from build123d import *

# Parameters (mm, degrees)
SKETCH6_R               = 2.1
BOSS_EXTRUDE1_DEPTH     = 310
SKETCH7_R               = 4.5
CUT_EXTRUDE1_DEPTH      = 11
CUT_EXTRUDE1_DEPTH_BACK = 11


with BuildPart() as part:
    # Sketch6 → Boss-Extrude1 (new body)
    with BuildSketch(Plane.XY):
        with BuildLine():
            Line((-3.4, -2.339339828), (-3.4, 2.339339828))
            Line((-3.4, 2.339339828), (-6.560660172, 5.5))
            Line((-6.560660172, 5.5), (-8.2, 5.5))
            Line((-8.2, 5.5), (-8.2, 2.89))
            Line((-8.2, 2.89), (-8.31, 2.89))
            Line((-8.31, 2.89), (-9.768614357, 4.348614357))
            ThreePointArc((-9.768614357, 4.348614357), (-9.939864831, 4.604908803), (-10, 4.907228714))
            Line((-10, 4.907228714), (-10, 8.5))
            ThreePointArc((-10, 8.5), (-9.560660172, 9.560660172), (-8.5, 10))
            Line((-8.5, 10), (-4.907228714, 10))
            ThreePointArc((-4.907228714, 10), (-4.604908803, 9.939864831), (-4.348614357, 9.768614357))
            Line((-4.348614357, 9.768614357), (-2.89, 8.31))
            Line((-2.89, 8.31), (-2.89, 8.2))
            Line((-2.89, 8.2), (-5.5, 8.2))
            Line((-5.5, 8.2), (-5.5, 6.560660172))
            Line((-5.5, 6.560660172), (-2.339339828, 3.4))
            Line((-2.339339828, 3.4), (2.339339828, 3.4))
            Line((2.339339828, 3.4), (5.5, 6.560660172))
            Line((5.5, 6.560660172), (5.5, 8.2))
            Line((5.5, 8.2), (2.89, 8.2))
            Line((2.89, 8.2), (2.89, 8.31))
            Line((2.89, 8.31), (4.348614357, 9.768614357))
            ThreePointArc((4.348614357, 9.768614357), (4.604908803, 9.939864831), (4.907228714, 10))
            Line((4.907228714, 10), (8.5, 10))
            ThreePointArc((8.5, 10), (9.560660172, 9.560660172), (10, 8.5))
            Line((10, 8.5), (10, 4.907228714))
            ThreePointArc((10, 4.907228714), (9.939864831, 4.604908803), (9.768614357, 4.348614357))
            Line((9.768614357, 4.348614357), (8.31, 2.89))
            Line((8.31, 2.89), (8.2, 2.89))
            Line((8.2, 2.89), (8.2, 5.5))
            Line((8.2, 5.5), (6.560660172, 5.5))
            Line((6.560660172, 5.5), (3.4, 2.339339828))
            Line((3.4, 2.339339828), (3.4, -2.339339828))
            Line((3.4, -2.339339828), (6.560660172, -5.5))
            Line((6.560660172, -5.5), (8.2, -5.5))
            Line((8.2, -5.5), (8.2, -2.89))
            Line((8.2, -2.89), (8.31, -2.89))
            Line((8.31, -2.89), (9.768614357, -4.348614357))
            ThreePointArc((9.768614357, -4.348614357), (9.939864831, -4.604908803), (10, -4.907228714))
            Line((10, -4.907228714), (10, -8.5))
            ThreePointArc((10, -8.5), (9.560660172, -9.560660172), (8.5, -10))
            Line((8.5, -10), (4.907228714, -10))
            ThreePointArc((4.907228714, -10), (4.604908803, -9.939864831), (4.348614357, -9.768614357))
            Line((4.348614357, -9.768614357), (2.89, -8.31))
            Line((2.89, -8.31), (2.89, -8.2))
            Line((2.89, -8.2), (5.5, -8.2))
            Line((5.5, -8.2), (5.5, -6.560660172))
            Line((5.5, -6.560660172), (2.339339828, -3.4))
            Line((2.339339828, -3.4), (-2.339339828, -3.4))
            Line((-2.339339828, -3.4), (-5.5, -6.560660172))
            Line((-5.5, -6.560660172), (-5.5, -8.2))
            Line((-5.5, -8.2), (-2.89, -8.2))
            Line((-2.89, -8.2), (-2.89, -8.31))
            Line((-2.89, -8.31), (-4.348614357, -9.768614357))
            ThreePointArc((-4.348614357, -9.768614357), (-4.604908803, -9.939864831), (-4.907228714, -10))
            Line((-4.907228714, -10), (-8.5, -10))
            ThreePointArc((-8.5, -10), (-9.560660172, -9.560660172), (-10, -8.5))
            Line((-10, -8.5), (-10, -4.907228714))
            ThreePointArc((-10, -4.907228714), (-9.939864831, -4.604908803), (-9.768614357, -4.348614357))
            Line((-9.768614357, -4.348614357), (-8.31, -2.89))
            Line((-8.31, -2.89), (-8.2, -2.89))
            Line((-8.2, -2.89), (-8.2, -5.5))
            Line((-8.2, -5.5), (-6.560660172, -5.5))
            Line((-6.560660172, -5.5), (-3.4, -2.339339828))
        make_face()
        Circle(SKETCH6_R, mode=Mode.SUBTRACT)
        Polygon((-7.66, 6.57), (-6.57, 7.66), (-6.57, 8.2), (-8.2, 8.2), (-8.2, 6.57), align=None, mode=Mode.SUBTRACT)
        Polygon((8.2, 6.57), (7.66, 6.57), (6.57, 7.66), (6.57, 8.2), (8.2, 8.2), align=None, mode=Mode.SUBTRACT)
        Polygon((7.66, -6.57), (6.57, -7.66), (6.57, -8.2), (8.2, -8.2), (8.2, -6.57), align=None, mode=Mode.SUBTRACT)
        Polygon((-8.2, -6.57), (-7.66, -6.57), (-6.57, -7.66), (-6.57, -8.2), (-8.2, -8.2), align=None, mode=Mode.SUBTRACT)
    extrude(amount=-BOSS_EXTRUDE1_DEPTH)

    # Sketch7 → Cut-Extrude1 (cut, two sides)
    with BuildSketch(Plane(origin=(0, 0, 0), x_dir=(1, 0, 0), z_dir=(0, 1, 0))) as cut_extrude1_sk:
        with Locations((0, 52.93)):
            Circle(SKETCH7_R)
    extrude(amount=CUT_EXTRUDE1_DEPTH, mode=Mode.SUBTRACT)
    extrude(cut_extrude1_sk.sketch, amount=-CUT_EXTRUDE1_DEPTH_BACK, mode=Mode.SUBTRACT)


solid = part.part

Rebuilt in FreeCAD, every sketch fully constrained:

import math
import FreeCAD as App
import Part
import Sketcher
from FreeCAD import Vector

doc = App.newDocument("Part")
params = doc.addObject("Spreadsheet::Sheet", "Params")
for row, (alias, value) in enumerate([
    ("sketch1_diameter", "4.2 mm"),
    ("sketch1_radius", "1.5 mm"),
    ("sketch1_radius2", "0.79 mm"),
    ("sketch1_width", "0.11 mm"),
    ("sketch1_width2", "2.61 mm"),
    ("pad1_length", "310 mm"),
    ("sketch2_diameter", "9 mm"),
], start=1):
    params.set(f"A{row}", alias)
    params.set(f"B{row}", "=" + value)
    params.setAlias(f"B{row}", alias)

body = doc.addObject("PartDesign::Body", "Body")

# Sketch on XY plane
sketch1 = body.newObject("Sketcher::SketchObject", "Sketch")
sketch1.AttachmentSupport = (doc.getObject("XY_Plane"), [""])
sketch1.MapMode = "FlatFace"
sketch1.addGeometry([
    Part.LineSegment(Vector(-3.4, 2.34, 0), Vector(-3.4, -2.34, 0)),  # 0
    Part.LineSegment(Vector(-3.4, -2.34, 0), Vector(-6.56, -5.5, 0)),  # 1
    Part.LineSegment(Vector(-6.56, -5.5, 0), Vector(-8.2, -5.5, 0)),  # 2
    Part.LineSegment(Vector(-8.2, -5.5, 0), Vector(-8.2, -2.89, 0)),  # 3
    Part.LineSegment(Vector(-8.2, -2.89, 0), Vector(-8.31, -2.89, 0)),  # 4
    Part.LineSegment(Vector(-8.31, -2.89, 0), Vector(-9.77, -4.35, 0)),  # 5
    Part.ArcOfCircle(Part.Circle(Vector(-9.21, -4.91, 0), Vector(0, 0, 1), 0.79), math.radians(135), math.radians(180)),  # 6
    Part.LineSegment(Vector(-10, -4.91, 0), Vector(-10, -8.5, 0)),  # 7
    Part.ArcOfCircle(Part.Circle(Vector(-8.5, -8.5, 0), Vector(0, 0, 1), 1.5), math.radians(180), math.radians(270)),  # 8
    Part.LineSegment(Vector(-8.5, -10, 0), Vector(-4.91, -10, 0)),  # 9
    Part.ArcOfCircle(Part.Circle(Vector(-4.91, -9.21, 0), Vector(0, 0, 1), 0.79), math.radians(-90), math.radians(-45)),  # 10
    Part.LineSegment(Vector(-4.35, -9.77, 0), Vector(-2.89, -8.31, 0)),  # 11
    Part.LineSegment(Vector(-2.89, -8.31, 0), Vector(-2.89, -8.2, 0)),  # 12
    Part.LineSegment(Vector(-2.89, -8.2, 0), Vector(-5.5, -8.2, 0)),  # 13
    Part.LineSegment(Vector(-5.5, -8.2, 0), Vector(-5.5, -6.56, 0)),  # 14
    Part.LineSegment(Vector(-5.5, -6.56, 0), Vector(-2.34, -3.4, 0)),  # 15
    Part.LineSegment(Vector(-2.34, -3.4, 0), Vector(2.34, -3.4, 0)),  # 16
    Part.LineSegment(Vector(2.34, -3.4, 0), Vector(5.5, -6.56, 0)),  # 17
    Part.LineSegment(Vector(5.5, -6.56, 0), Vector(5.5, -8.2, 0)),  # 18
    Part.LineSegment(Vector(5.5, -8.2, 0), Vector(2.89, -8.2, 0)),  # 19
    Part.LineSegment(Vector(2.89, -8.2, 0), Vector(2.89, -8.31, 0)),  # 20
    Part.LineSegment(Vector(2.89, -8.31, 0), Vector(4.35, -9.77, 0)),  # 21
    Part.ArcOfCircle(Part.Circle(Vector(4.91, -9.21, 0), Vector(0, 0, 1), 0.79), math.radians(-135), math.radians(-90)),  # 22
    Part.LineSegment(Vector(4.91, -10, 0), Vector(8.5, -10, 0)),  # 23
    Part.ArcOfCircle(Part.Circle(Vector(8.5, -8.5, 0), Vector(0, 0, 1), 1.5), math.radians(-90), math.radians(0)),  # 24
    Part.LineSegment(Vector(10, -8.5, 0), Vector(10, -4.91, 0)),  # 25
    Part.ArcOfCircle(Part.Circle(Vector(9.21, -4.91, 0), Vector(0, 0, 1), 0.79), math.radians(0), math.radians(45)),  # 26
    Part.LineSegment(Vector(9.77, -4.35, 0), Vector(8.31, -2.89, 0)),  # 27
    Part.LineSegment(Vector(8.31, -2.89, 0), Vector(8.2, -2.89, 0)),  # 28
    Part.LineSegment(Vector(8.2, -2.89, 0), Vector(8.2, -5.5, 0)),  # 29
    Part.LineSegment(Vector(8.2, -5.5, 0), Vector(6.56, -5.5, 0)),  # 30
    Part.LineSegment(Vector(6.56, -5.5, 0), Vector(3.4, -2.34, 0)),  # 31
    Part.LineSegment(Vector(3.4, -2.34, 0), Vector(3.4, 2.34, 0)),  # 32
    Part.LineSegment(Vector(3.4, 2.34, 0), Vector(6.56, 5.5, 0)),  # 33
    Part.LineSegment(Vector(6.56, 5.5, 0), Vector(8.2, 5.5, 0)),  # 34
    Part.LineSegment(Vector(8.2, 5.5, 0), Vector(8.2, 2.89, 0)),  # 35
    Part.LineSegment(Vector(8.2, 2.89, 0), Vector(8.31, 2.89, 0)),  # 36
    Part.LineSegment(Vector(8.31, 2.89, 0), Vector(9.77, 4.35, 0)),  # 37
    Part.ArcOfCircle(Part.Circle(Vector(9.21, 4.91, 0), Vector(0, 0, 1), 0.79), math.radians(-45), math.radians(0)),  # 38
    Part.LineSegment(Vector(10, 4.91, 0), Vector(10, 8.5, 0)),  # 39
    Part.ArcOfCircle(Part.Circle(Vector(8.5, 8.5, 0), Vector(0, 0, 1), 1.5), math.radians(0), math.radians(90)),  # 40
    Part.LineSegment(Vector(8.5, 10, 0), Vector(4.91, 10, 0)),  # 41
    Part.ArcOfCircle(Part.Circle(Vector(4.91, 9.21, 0), Vector(0, 0, 1), 0.79), math.radians(90), math.radians(135)),  # 42
    Part.LineSegment(Vector(4.35, 9.77, 0), Vector(2.89, 8.31, 0)),  # 43
    Part.LineSegment(Vector(2.89, 8.31, 0), Vector(2.89, 8.2, 0)),  # 44
    Part.LineSegment(Vector(2.89, 8.2, 0), Vector(5.5, 8.2, 0)),  # 45
    Part.LineSegment(Vector(5.5, 8.2, 0), Vector(5.5, 6.56, 0)),  # 46
    Part.LineSegment(Vector(5.5, 6.56, 0), Vector(2.34, 3.4, 0)),  # 47
    Part.LineSegment(Vector(2.34, 3.4, 0), Vector(-2.34, 3.4, 0)),  # 48
    Part.LineSegment(Vector(-2.34, 3.4, 0), Vector(-5.5, 6.56, 0)),  # 49
    Part.LineSegment(Vector(-5.5, 6.56, 0), Vector(-5.5, 8.2, 0)),  # 50
    Part.LineSegment(Vector(-5.5, 8.2, 0), Vector(-2.89, 8.2, 0)),  # 51
    Part.LineSegment(Vector(-2.89, 8.2, 0), Vector(-2.89, 8.31, 0)),  # 52
    Part.LineSegment(Vector(-2.89, 8.31, 0), Vector(-4.35, 9.77, 0)),  # 53
    Part.ArcOfCircle(Part.Circle(Vector(-4.91, 9.21, 0), Vector(0, 0, 1), 0.79), math.radians(45), math.radians(90)),  # 54
    Part.LineSegment(Vector(-4.91, 10, 0), Vector(-8.5, 10, 0)),  # 55
    Part.ArcOfCircle(Part.Circle(Vector(-8.5, 8.5, 0), Vector(0, 0, 1), 1.5), math.radians(90), math.radians(180)),  # 56
    Part.LineSegment(Vector(-10, 8.5, 0), Vector(-10, 4.91, 0)),  # 57
    Part.ArcOfCircle(Part.Circle(Vector(-9.21, 4.91, 0), Vector(0, 0, 1), 0.79), math.radians(180), math.radians(225)),  # 58
    Part.LineSegment(Vector(-9.77, 4.35, 0), Vector(-8.31, 2.89, 0)),  # 59
    Part.LineSegment(Vector(-8.31, 2.89, 0), Vector(-8.2, 2.89, 0)),  # 60
    Part.LineSegment(Vector(-8.2, 2.89, 0), Vector(-8.2, 5.5, 0)),  # 61
    Part.LineSegment(Vector(-8.2, 5.5, 0), Vector(-6.56, 5.5, 0)),  # 62
    Part.LineSegment(Vector(-6.56, 5.5, 0), Vector(-3.4, 2.34, 0)),  # 63
    Part.LineSegment(Vector(7.66, -6.57, 0), Vector(8.2, -6.57, 0)),  # 64
    Part.LineSegment(Vector(8.2, -6.57, 0), Vector(8.2, -8.2, 0)),  # 65
    Part.LineSegment(Vector(8.2, -8.2, 0), Vector(6.57, -8.2, 0)),  # 66
    Part.LineSegment(Vector(6.57, -8.2, 0), Vector(6.57, -7.66, 0)),  # 67
    Part.LineSegment(Vector(6.57, -7.66, 0), Vector(7.66, -6.57, 0)),  # 68
    Part.LineSegment(Vector(-8.2, -6.57, 0), Vector(-7.66, -6.57, 0)),  # 69
    Part.LineSegment(Vector(-7.66, -6.57, 0), Vector(-6.57, -7.66, 0)),  # 70
    Part.LineSegment(Vector(-6.57, -7.66, 0), Vector(-6.57, -8.2, 0)),  # 71
    Part.LineSegment(Vector(-6.57, -8.2, 0), Vector(-8.2, -8.2, 0)),  # 72
    Part.LineSegment(Vector(-8.2, -8.2, 0), Vector(-8.2, -6.57, 0)),  # 73
    Part.LineSegment(Vector(8.2, 6.57, 0), Vector(7.66, 6.57, 0)),  # 74
    Part.LineSegment(Vector(7.66, 6.57, 0), Vector(6.57, 7.66, 0)),  # 75
    Part.LineSegment(Vector(6.57, 7.66, 0), Vector(6.57, 8.2, 0)),  # 76
    Part.LineSegment(Vector(6.57, 8.2, 0), Vector(8.2, 8.2, 0)),  # 77
    Part.LineSegment(Vector(8.2, 8.2, 0), Vector(8.2, 6.57, 0)),  # 78
    Part.Circle(Vector(0, 0, 0), Vector(0, 0, 1), 2.1),  # 79
    Part.LineSegment(Vector(-7.66, 6.57, 0), Vector(-8.2, 6.57, 0)),  # 80
    Part.LineSegment(Vector(-8.2, 6.57, 0), Vector(-8.2, 8.2, 0)),  # 81
    Part.LineSegment(Vector(-8.2, 8.2, 0), Vector(-6.57, 8.2, 0)),  # 82
    Part.LineSegment(Vector(-6.57, 8.2, 0), Vector(-6.57, 7.66, 0)),  # 83
    Part.LineSegment(Vector(-6.57, 7.66, 0), Vector(-7.66, 6.57, 0)),  # 84
], False)
sketch1.addConstraint([
    Sketcher.Constraint("Coincident", 0, 2, 1, 1),
    Sketcher.Constraint("Coincident", 1, 2, 2, 1),
    Sketcher.Constraint("Coincident", 2, 2, 3, 1),
    Sketcher.Constraint("Coincident", 3, 2, 4, 1),
    Sketcher.Constraint("Coincident", 4, 2, 5, 1),
    Sketcher.Constraint("Tangent", 5, 2, 6, 1),
    Sketcher.Constraint("Tangent", 6, 2, 7, 1),
    Sketcher.Constraint("Tangent", 7, 2, 8, 1),
    Sketcher.Constraint("Tangent", 8, 2, 9, 1),
    Sketcher.Constraint("Tangent", 9, 2, 10, 1),
    Sketcher.Constraint("Tangent", 10, 2, 11, 1),
    Sketcher.Constraint("Coincident", 11, 2, 12, 1),
    Sketcher.Constraint("Coincident", 12, 2, 13, 1),
    Sketcher.Constraint("Coincident", 13, 2, 14, 1),
    Sketcher.Constraint("Coincident", 14, 2, 15, 1),
    Sketcher.Constraint("Coincident", 15, 2, 16, 1),
    Sketcher.Constraint("Coincident", 16, 2, 17, 1),
    Sketcher.Constraint("Coincident", 17, 2, 18, 1),
    Sketcher.Constraint("Coincident", 18, 2, 19, 1),
    Sketcher.Constraint("Coincident", 19, 2, 20, 1),
    Sketcher.Constraint("Coincident", 20, 2, 21, 1),
    Sketcher.Constraint("Tangent", 21, 2, 22, 1),
    Sketcher.Constraint("Tangent", 22, 2, 23, 1),
    Sketcher.Constraint("Tangent", 23, 2, 24, 1),
    Sketcher.Constraint("Tangent", 24, 2, 25, 1),
    Sketcher.Constraint("Tangent", 25, 2, 26, 1),
    Sketcher.Constraint("Tangent", 26, 2, 27, 1),
    Sketcher.Constraint("Coincident", 27, 2, 28, 1),
    Sketcher.Constraint("Coincident", 28, 2, 29, 1),
    Sketcher.Constraint("Coincident", 29, 2, 30, 1),
    Sketcher.Constraint("Coincident", 30, 2, 31, 1),
    Sketcher.Constraint("Coincident", 31, 2, 32, 1),
    Sketcher.Constraint("Coincident", 32, 2, 33, 1),
    Sketcher.Constraint("Coincident", 33, 2, 34, 1),
    Sketcher.Constraint("Coincident", 34, 2, 35, 1),
    Sketcher.Constraint("Coincident", 35, 2, 36, 1),
    Sketcher.Constraint("Coincident", 36, 2, 37, 1),
    Sketcher.Constraint("Tangent", 37, 2, 38, 1),
    Sketcher.Constraint("Tangent", 38, 2, 39, 1),
    Sketcher.Constraint("Tangent", 39, 2, 40, 1),
    Sketcher.Constraint("Tangent", 40, 2, 41, 1),
    Sketcher.Constraint("Tangent", 41, 2, 42, 1),
    Sketcher.Constraint("Tangent", 42, 2, 43, 1),
    Sketcher.Constraint("Coincident", 43, 2, 44, 1),
    Sketcher.Constraint("Coincident", 44, 2, 45, 1),
    Sketcher.Constraint("Coincident", 45, 2, 46, 1),
    Sketcher.Constraint("Coincident", 46, 2, 47, 1),
    Sketcher.Constraint("Coincident", 47, 2, 48, 1),
    Sketcher.Constraint("Coincident", 48, 2, 49, 1),
    Sketcher.Constraint("Coincident", 49, 2, 50, 1),
    Sketcher.Constraint("Coincident", 50, 2, 51, 1),
    Sketcher.Constraint("Coincident", 51, 2, 52, 1),
    Sketcher.Constraint("Coincident", 52, 2, 53, 1),
    Sketcher.Constraint("Tangent", 53, 2, 54, 1),
    Sketcher.Constraint("Tangent", 54, 2, 55, 1),
    Sketcher.Constraint("Tangent", 55, 2, 56, 1),
    Sketcher.Constraint("Tangent", 56, 2, 57, 1),
    Sketcher.Constraint("Tangent", 57, 2, 58, 1),
    Sketcher.Constraint("Tangent", 58, 2, 59, 1),
    Sketcher.Constraint("Coincident", 59, 2, 60, 1),
    Sketcher.Constraint("Coincident", 60, 2, 61, 1),
    Sketcher.Constraint("Coincident", 61, 2, 62, 1),
    Sketcher.Constraint("Coincident", 62, 2, 63, 1),
    Sketcher.Constraint("Coincident", 63, 2, 0, 1),
    Sketcher.Constraint("Coincident", 64, 2, 65, 1),
    Sketcher.Constraint("Coincident", 65, 2, 66, 1),
    Sketcher.Constraint("Coincident", 66, 2, 67, 1),
    Sketcher.Constraint("Coincident", 67, 2, 68, 1),
    Sketcher.Constraint("Coincident", 68, 2, 64, 1),
    Sketcher.Constraint("Coincident", 69, 2, 70, 1),
    Sketcher.Constraint("Coincident", 70, 2, 71, 1),
    Sketcher.Constraint("Coincident", 71, 2, 72, 1),
    Sketcher.Constraint("Coincident", 72, 2, 73, 1),
    Sketcher.Constraint("Coincident", 73, 2, 69, 1),
    Sketcher.Constraint("Coincident", 74, 2, 75, 1),
    Sketcher.Constraint("Coincident", 75, 2, 76, 1),
    Sketcher.Constraint("Coincident", 76, 2, 77, 1),
    Sketcher.Constraint("Coincident", 77, 2, 78, 1),
    Sketcher.Constraint("Coincident", 78, 2, 74, 1),
    Sketcher.Constraint("Coincident", 80, 2, 81, 1),
    Sketcher.Constraint("Coincident", 81, 2, 82, 1),
    Sketcher.Constraint("Coincident", 82, 2, 83, 1),
    Sketcher.Constraint("Coincident", 83, 2, 84, 1),
    Sketcher.Constraint("Coincident", 84, 2, 80, 1),
    Sketcher.Constraint("Vertical", 0),
    Sketcher.Constraint("Horizontal", 2),
    Sketcher.Constraint("Vertical", 3),
    Sketcher.Constraint("Horizontal", 4),
    Sketcher.Constraint("Vertical", 7),
    Sketcher.Constraint("Horizontal", 9),
    Sketcher.Constraint("Vertical", 12),
    Sketcher.Constraint("Horizontal", 13),
    Sketcher.Constraint("Vertical", 14),
    Sketcher.Constraint("Horizontal", 16),
    Sketcher.Constraint("Vertical", 18),
    Sketcher.Constraint("Horizontal", 19),
    Sketcher.Constraint("Vertical", 20),
    Sketcher.Constraint("Horizontal", 23),
    Sketcher.Constraint("Vertical", 25),
    Sketcher.Constraint("Horizontal", 28),
    Sketcher.Constraint("Vertical", 29),
    Sketcher.Constraint("Horizontal", 30),
    Sketcher.Constraint("Vertical", 32),
    Sketcher.Constraint("Horizontal", 34),
    Sketcher.Constraint("Vertical", 35),
    Sketcher.Constraint("Horizontal", 36),
    Sketcher.Constraint("Vertical", 39),
    Sketcher.Constraint("Horizontal", 41),
    Sketcher.Constraint("Vertical", 44),
    Sketcher.Constraint("Horizontal", 45),
    Sketcher.Constraint("Vertical", 46),
    Sketcher.Constraint("Horizontal", 48),
    Sketcher.Constraint("Vertical", 50),
    Sketcher.Constraint("Horizontal", 51),
    Sketcher.Constraint("Vertical", 52),
    Sketcher.Constraint("Horizontal", 55),
    Sketcher.Constraint("Vertical", 57),
    Sketcher.Constraint("Horizontal", 60),
    Sketcher.Constraint("Vertical", 61),
    Sketcher.Constraint("Horizontal", 62),
    Sketcher.Constraint("Horizontal", 64),
    Sketcher.Constraint("Vertical", 65),
    Sketcher.Constraint("Horizontal", 66),
    Sketcher.Constraint("Vertical", 67),
    Sketcher.Constraint("Horizontal", 69),
    Sketcher.Constraint("Vertical", 71),
    Sketcher.Constraint("Horizontal", 72),
    Sketcher.Constraint("Vertical", 73),
    Sketcher.Constraint("Horizontal", 74),
    Sketcher.Constraint("Vertical", 76),
    Sketcher.Constraint("Horizontal", 77),
    Sketcher.Constraint("Vertical", 78),
    Sketcher.Constraint("Horizontal", 80),
    Sketcher.Constraint("Vertical", 81),
    Sketcher.Constraint("Horizontal", 82),
    Sketcher.Constraint("Vertical", 83),
    Sketcher.Constraint("Coincident", 79, 3, -1, 1),
    Sketcher.Constraint("Equal", 6, 10),
    Sketcher.Constraint("Equal", 10, 22),
    Sketcher.Constraint("Equal", 8, 24),
    Sketcher.Constraint("Equal", 22, 26),
    Sketcher.Constraint("Equal", 26, 38),
    Sketcher.Constraint("Equal", 24, 40),
    Sketcher.Constraint("Equal", 38, 42),
    Sketcher.Constraint("Equal", 42, 54),
    Sketcher.Constraint("Equal", 40, 56),
    Sketcher.Constraint("Equal", 54, 58),
    Sketcher.Constraint("Symmetric", 6, 3, 38, 3, -1, 1),
    Sketcher.Constraint("Symmetric", 10, 3, 42, 3, -1, 1),
    Sketcher.Constraint("Symmetric", 22, 3, 54, 3, -1, 1),
    Sketcher.Constraint("Symmetric", 26, 3, 58, 3, -1, 1),
    Sketcher.Constraint("Symmetric", 0, 2, 32, 2, -1, 1),
    Sketcher.Constraint("Symmetric", 1, 2, 33, 2, -1, 1),
    Sketcher.Constraint("Symmetric", 3, 2, 35, 2, -1, 1),
    Sketcher.Constraint("Symmetric", 11, 2, 43, 2, -1, 1),
    Sketcher.Constraint("Symmetric", 13, 2, 45, 2, -1, 1),
    Sketcher.Constraint("Symmetric", 15, 2, 47, 2, -1, 1),
    Sketcher.Constraint("Symmetric", 17, 2, 49, 2, -1, 1),
    Sketcher.Constraint("Symmetric", 19, 2, 51, 2, -1, 1),
    Sketcher.Constraint("Symmetric", 27, 2, 59, 2, -1, 1),
    Sketcher.Constraint("Symmetric", 29, 2, 61, 2, -1, 1),
    Sketcher.Constraint("Symmetric", 69, 2, 74, 2, -1, 1),
    Sketcher.Constraint("Symmetric", 70, 2, 75, 2, -1, 1),
    Sketcher.Constraint("Symmetric", 72, 2, 77, 2, -1, 1),
    Sketcher.Constraint("Symmetric", 64, 2, 80, 2, -1, 1),
    Sketcher.Constraint("Symmetric", 66, 2, 82, 2, -1, 1),
    Sketcher.Constraint("Symmetric", 10, 3, 22, 3, -2),
    Sketcher.Constraint("Symmetric", 6, 3, 26, 3, -2),
    Sketcher.Constraint("Symmetric", 14, 2, 17, 2, -2),
    Sketcher.Constraint("Symmetric", 12, 2, 19, 2, -2),
    Sketcher.Constraint("Symmetric", 4, 2, 27, 2, -2),
    Sketcher.Constraint("Symmetric", 2, 2, 29, 2, -2),
    Sketcher.Constraint("Symmetric", 68, 2, 69, 2, -2),
    Sketcher.Constraint("Symmetric", 67, 2, 70, 2, -2),
    Sketcher.Constraint("Symmetric", 65, 2, 72, 2, -2),
    Sketcher.Constraint("Parallel", 1, 5),
    Sketcher.Constraint("Parallel", 5, 11),
    Sketcher.Constraint("Parallel", 11, 15),
    Sketcher.Constraint("Perpendicular", 15, 17),
    Sketcher.Constraint("Parallel", 17, 21),
    Sketcher.Constraint("Parallel", 21, 27),
    Sketcher.Constraint("Parallel", 27, 31),
    Sketcher.Constraint("Parallel", 33, 37),
    Sketcher.Constraint("Parallel", 43, 47),
    Sketcher.Constraint("Perpendicular", 47, 49),
    Sketcher.Constraint("Parallel", 49, 53),
    Sketcher.Constraint("Parallel", 59, 63),
    Sketcher.Constraint("Perpendicular", 63, 68),
    Sketcher.Constraint("Perpendicular", 75, 84),
    Sketcher.Constraint("Horizontal", 0, 2, 31, 2),
    Sketcher.Constraint("Horizontal", 32, 2, 63, 2),
    Sketcher.Constraint("Horizontal", 19, 2, 65, 2),
    Sketcher.Constraint("Horizontal", 75, 2, 83, 2),
    Sketcher.Constraint("Vertical", 35, 2, 64, 2),
    Sketcher.Constraint("Equal", 48, 0),
    Sketcher.Constraint("Equal", 51, 3),
    Sketcher.Constraint("Equal", 55, 7),
    Sketcher.Constraint("Equal", 60, 12),
    Sketcher.Constraint("Equal", 62, 14),
    Sketcher.Constraint("Equal", 82, 65),
    Sketcher.Constraint("Equal", 5, 11),
    Sketcher.Constraint("Equal", 1, 15),
    Sketcher.Constraint("Diameter", 79, 4.2),
    Sketcher.Constraint("Radius", 8, 1.5),
    Sketcher.Constraint("Radius", 6, 0.79),
    Sketcher.Constraint("DistanceX", 6, 2, -1, 1, 10.0),
    Sketcher.Constraint("DistanceX", 4, 2, 4, 1, 0.11),
    Sketcher.Constraint("DistanceX", 13, 2, 13, 1, 2.61),
    Sketcher.Constraint("DistanceX", 64, 1, 64, 2, 0.54),
    Sketcher.Constraint("DistanceX", 66, 2, 66, 1, 1.63),
    Sketcher.Constraint("DistanceX", 0, 2, -1, 1, 3.4),
    Sketcher.Constraint("DistanceY", 1, 2, -1, 1, 5.5),
    Sketcher.Constraint("DistanceX", 2, 2, -1, 1, 8.2),
    Sketcher.Constraint("DistanceX", 2, 2, 2, 1, 1.63934),
])
sketch1.setExpression("Constraints[202]", "Params.sketch1_diameter")
sketch1.setExpression("Constraints[203]", "Params.sketch1_radius")
sketch1.setExpression("Constraints[204]", "Params.sketch1_radius2")
sketch1.setExpression("Constraints[206]", "Params.sketch1_width")
sketch1.setExpression("Constraints[207]", "Params.sketch1_width2")
pad1 = body.newObject("PartDesign::Pad", "Pad")
pad1.Profile = sketch1
pad1.setExpression("Length", "Params.pad1_length")
pad1.Reversed = True

# Sketch on XZ plane
sketch2 = body.newObject("Sketcher::SketchObject", "Sketch001")
sketch2.AttachmentSupport = (doc.getObject("XZ_Plane"), [""])
sketch2.MapMode = "FlatFace"
sketch2.addGeometry(Part.Circle(Vector(0, -52.9, 0), Vector(0, 0, 1), 4.5), False)
sketch2.addConstraint([
    Sketcher.Constraint("PointOnObject", 0, 3, -2),
    Sketcher.Constraint("Diameter", 0, 9.0),
    Sketcher.Constraint("DistanceY", 0, 3, -1, 1, 52.93),
])
sketch2.setExpression("Constraints[1]", "Params.sketch2_diameter")
pocket1 = body.newObject("PartDesign::Pocket", "Pocket")
pocket1.Profile = sketch2
pocket1.Type = "ThroughAll"
pocket1.Midplane = True

doc.recompute()
